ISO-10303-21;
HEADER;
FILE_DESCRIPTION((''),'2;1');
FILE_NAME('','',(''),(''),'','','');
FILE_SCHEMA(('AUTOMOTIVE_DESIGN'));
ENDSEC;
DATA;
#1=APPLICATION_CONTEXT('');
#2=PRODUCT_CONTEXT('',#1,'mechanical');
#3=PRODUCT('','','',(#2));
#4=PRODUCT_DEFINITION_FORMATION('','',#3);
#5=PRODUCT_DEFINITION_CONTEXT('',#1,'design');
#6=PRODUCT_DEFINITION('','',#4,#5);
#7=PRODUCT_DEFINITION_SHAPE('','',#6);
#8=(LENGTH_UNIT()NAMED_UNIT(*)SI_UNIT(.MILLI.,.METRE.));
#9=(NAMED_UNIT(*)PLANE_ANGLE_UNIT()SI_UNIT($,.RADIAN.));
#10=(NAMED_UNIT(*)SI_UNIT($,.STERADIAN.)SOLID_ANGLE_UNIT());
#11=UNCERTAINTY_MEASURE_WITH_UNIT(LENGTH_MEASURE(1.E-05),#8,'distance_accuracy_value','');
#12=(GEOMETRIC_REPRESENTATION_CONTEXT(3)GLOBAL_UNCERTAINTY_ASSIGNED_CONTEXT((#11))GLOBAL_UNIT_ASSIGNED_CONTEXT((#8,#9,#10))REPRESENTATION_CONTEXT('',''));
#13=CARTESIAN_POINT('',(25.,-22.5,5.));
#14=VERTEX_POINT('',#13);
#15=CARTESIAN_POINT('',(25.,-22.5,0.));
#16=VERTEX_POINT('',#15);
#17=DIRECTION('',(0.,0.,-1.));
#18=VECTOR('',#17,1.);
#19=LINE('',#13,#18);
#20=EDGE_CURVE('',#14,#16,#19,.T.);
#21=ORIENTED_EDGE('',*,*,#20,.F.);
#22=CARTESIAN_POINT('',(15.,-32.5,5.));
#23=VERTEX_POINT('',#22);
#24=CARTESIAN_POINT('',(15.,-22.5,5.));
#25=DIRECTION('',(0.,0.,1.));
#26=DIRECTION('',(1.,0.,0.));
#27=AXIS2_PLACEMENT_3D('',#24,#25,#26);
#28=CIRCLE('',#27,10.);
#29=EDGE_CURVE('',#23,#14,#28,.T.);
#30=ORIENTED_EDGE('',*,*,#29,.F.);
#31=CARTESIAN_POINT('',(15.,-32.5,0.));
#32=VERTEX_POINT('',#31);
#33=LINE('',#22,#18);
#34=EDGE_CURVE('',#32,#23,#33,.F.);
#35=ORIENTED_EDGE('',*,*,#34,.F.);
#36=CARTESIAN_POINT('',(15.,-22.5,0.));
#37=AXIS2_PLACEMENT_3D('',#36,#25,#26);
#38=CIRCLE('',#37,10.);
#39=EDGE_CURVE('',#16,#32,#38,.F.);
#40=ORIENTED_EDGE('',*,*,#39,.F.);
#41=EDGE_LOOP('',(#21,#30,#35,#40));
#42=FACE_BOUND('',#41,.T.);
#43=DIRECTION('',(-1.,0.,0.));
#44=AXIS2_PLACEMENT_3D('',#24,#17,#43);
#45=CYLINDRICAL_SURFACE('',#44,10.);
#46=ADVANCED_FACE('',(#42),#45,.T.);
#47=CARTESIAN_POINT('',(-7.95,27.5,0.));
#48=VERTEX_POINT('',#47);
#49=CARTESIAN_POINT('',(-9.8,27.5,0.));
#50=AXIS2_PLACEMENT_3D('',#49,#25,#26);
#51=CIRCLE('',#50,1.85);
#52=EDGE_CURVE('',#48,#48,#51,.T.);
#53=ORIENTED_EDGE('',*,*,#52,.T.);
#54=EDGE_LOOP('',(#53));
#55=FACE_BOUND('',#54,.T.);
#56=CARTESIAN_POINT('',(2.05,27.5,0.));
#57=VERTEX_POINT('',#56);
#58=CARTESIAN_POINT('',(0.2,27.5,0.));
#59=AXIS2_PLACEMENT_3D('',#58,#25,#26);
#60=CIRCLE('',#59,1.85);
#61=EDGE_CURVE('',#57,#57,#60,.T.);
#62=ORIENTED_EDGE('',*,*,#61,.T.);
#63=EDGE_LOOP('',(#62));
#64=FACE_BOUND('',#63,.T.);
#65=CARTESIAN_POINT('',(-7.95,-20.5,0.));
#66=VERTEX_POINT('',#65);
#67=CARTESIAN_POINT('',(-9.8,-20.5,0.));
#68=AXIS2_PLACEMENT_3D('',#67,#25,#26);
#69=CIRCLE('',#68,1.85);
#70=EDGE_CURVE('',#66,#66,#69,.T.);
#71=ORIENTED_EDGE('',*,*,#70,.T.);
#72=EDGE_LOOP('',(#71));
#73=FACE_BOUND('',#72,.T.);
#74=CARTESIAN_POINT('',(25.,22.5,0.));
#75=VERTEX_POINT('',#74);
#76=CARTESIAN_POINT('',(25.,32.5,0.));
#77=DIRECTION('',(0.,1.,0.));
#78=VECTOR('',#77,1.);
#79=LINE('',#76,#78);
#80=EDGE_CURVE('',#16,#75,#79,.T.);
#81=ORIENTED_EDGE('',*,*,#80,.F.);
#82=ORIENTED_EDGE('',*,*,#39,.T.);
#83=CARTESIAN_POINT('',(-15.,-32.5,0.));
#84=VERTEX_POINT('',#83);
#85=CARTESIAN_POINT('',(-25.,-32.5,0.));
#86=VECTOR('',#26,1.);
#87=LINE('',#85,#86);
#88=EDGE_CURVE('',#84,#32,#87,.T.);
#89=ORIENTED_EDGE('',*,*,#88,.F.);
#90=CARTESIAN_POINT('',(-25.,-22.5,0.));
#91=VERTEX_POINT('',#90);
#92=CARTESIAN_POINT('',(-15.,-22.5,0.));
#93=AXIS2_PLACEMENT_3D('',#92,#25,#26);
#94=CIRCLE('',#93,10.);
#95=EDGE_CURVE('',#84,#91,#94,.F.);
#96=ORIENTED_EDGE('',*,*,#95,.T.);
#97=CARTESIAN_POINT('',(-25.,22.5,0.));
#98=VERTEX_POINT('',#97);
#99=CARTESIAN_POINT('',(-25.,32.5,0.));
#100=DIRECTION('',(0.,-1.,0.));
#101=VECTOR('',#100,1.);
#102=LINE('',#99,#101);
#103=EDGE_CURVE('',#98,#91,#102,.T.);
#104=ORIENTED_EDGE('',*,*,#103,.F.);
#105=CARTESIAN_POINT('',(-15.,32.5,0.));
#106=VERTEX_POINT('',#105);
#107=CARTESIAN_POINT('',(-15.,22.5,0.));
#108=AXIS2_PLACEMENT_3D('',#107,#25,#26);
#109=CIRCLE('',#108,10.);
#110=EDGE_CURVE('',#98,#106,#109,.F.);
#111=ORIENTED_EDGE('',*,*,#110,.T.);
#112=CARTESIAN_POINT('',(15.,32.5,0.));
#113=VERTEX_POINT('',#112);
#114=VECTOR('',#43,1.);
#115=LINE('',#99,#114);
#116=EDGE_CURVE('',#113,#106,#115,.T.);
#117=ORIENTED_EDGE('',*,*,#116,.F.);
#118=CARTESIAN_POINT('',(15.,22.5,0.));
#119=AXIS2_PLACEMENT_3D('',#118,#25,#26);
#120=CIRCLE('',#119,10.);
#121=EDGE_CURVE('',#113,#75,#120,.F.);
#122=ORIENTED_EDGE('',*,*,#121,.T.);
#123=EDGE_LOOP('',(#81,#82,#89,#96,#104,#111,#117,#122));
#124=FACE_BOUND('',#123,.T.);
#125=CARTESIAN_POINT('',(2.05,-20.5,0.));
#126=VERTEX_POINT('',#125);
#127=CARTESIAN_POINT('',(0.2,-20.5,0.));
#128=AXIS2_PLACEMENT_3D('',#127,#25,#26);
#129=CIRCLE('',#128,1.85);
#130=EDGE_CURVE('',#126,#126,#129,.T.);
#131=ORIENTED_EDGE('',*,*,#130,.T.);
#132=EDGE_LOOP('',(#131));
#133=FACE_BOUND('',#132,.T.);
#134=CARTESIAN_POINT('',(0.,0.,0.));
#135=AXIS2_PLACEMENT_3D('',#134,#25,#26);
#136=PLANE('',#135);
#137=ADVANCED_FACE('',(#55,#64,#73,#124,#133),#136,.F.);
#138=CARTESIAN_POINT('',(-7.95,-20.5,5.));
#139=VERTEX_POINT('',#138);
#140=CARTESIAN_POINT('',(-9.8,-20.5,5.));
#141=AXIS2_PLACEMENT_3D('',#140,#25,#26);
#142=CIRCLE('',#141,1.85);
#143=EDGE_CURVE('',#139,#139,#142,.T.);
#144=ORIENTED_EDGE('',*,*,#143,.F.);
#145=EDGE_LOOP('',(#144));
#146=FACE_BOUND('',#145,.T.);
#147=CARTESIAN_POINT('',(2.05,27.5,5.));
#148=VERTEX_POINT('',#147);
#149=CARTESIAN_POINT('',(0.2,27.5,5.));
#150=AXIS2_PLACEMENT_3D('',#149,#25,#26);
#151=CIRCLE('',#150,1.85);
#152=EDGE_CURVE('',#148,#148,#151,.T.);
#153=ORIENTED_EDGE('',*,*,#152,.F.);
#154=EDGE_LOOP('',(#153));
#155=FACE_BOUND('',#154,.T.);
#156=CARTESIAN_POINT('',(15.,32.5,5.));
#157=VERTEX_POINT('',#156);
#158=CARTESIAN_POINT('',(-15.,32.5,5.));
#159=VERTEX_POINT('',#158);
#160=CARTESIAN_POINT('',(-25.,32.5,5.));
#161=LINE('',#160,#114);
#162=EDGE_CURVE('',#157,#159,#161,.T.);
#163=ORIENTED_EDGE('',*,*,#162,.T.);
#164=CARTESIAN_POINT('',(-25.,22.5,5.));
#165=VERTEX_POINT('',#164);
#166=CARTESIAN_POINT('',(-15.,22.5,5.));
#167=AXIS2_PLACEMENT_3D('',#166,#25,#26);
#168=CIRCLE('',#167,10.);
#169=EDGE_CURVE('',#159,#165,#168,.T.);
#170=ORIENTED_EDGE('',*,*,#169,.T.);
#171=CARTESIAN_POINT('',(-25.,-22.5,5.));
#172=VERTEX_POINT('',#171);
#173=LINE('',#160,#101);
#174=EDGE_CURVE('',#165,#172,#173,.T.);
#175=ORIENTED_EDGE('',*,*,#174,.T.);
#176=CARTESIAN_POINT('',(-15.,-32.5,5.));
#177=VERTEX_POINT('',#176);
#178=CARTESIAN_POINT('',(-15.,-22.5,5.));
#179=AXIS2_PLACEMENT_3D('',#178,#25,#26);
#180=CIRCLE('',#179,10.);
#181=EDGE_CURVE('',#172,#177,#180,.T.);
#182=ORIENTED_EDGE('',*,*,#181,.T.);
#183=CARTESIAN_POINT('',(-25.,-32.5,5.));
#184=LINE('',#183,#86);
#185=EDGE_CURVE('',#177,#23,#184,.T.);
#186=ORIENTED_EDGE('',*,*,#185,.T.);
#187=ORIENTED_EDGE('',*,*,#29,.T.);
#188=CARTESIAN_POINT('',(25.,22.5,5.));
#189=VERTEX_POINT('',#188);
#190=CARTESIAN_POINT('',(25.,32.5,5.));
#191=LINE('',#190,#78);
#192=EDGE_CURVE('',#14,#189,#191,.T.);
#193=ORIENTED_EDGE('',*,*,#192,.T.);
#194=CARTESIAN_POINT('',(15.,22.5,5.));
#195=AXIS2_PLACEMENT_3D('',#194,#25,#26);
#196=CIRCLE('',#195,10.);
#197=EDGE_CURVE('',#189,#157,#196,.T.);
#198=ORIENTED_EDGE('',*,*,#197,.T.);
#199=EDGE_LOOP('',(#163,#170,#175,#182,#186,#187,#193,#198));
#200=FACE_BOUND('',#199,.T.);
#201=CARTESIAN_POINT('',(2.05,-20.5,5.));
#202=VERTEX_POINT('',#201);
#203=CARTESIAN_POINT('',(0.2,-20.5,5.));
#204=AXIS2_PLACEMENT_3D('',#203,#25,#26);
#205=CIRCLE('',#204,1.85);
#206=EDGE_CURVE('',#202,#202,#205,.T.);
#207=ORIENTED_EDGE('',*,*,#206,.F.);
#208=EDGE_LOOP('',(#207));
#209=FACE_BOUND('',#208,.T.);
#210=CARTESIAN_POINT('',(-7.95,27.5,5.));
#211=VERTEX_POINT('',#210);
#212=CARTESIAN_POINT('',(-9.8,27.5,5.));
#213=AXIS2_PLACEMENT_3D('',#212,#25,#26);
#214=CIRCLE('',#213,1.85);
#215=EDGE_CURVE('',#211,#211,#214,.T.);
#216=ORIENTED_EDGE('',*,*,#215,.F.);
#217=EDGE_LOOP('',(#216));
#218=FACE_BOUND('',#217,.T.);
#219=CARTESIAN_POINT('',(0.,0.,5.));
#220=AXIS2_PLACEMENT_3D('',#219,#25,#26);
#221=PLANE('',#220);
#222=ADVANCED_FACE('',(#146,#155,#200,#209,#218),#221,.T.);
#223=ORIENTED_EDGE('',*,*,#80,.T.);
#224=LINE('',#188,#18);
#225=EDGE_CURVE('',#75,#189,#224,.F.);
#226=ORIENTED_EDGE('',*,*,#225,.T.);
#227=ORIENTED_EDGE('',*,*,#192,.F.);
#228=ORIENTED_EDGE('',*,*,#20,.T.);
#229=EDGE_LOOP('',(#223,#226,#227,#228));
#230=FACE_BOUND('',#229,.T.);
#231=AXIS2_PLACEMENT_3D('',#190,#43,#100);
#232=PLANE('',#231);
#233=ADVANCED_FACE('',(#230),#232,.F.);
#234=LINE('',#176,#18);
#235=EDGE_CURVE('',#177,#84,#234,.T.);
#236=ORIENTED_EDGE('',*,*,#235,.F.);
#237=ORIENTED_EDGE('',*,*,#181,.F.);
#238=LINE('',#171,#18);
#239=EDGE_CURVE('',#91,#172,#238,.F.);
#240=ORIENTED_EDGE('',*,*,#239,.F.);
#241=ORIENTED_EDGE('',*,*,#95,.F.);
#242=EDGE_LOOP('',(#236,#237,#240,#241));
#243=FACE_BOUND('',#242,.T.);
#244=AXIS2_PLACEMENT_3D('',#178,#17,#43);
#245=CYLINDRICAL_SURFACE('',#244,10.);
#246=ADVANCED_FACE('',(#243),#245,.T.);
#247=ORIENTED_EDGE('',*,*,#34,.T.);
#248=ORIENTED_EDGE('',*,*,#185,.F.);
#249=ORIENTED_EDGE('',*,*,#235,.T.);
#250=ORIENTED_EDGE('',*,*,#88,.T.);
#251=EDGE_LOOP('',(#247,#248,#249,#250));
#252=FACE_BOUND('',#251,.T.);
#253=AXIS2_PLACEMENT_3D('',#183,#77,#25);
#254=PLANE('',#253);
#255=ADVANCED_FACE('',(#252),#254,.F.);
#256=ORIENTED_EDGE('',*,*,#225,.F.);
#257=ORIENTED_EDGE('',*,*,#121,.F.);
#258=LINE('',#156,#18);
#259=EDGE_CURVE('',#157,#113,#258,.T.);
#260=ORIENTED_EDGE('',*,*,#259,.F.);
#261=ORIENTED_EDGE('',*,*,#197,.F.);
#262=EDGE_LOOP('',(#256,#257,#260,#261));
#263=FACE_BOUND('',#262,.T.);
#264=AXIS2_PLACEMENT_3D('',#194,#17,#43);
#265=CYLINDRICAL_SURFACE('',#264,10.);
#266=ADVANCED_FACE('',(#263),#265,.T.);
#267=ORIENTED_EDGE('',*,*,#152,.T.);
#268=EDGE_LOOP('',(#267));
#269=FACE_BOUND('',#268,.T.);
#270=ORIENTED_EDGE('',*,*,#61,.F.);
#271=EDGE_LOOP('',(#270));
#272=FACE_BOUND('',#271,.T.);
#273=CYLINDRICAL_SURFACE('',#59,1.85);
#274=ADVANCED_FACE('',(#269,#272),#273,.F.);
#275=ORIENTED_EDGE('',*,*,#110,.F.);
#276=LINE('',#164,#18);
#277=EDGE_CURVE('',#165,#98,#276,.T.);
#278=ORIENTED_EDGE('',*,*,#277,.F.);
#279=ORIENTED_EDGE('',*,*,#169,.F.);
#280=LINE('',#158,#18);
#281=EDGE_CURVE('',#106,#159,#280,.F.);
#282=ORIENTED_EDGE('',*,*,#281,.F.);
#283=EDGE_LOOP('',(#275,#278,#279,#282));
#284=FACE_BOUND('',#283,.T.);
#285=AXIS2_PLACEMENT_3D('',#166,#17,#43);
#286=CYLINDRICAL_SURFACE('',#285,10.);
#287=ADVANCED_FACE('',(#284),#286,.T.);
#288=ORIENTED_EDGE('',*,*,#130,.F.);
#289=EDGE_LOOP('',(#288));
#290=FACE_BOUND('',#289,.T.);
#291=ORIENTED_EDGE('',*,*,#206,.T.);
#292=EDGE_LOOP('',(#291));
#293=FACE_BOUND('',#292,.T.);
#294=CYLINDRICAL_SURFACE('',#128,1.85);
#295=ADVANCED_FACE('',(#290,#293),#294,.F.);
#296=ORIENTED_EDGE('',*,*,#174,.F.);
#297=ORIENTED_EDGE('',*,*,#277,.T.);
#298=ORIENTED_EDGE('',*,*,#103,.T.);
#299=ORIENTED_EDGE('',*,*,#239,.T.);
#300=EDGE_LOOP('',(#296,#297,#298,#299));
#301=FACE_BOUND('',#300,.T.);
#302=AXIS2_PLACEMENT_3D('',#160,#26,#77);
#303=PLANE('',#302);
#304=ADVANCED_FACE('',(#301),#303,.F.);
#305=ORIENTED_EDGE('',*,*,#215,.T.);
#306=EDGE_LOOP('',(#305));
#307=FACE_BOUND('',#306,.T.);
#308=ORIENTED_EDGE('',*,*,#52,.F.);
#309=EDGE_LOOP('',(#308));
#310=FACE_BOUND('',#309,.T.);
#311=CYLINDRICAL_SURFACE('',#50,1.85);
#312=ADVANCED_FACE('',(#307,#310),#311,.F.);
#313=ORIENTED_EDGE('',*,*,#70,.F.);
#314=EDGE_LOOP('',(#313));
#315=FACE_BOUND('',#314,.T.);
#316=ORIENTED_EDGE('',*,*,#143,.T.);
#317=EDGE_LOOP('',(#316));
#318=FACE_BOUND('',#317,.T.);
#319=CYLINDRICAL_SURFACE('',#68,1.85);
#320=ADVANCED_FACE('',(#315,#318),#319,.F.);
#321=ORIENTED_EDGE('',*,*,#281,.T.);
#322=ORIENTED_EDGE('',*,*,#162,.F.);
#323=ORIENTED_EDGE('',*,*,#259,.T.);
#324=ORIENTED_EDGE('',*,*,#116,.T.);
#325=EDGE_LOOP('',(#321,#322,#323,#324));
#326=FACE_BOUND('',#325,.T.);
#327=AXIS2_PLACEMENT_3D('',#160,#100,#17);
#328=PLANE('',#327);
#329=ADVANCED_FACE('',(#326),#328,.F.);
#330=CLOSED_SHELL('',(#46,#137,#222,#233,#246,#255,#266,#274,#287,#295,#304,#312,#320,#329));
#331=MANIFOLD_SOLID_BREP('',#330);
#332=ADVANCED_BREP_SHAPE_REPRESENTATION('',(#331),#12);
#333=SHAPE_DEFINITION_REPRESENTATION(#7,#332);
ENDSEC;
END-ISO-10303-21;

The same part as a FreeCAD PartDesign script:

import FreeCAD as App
import Part
import Sketcher


def edges_at(feature, points):
    """Names of the edges that pass closest to the given points."""
    edges = feature.Shape.Edges
    near = lambda p: min(range(len(edges)), key=lambda i: edges[i].distToShape(Part.Vertex(*p))[0])
    return sorted({f"Edge{near(p) + 1}" for p in points})


def add_polygon(sketch, points):
    """Adds a closed chain of lines whose ends are joined by coincident constraints."""
    first, n = sketch.GeometryCount, len(points)
    for a, b in zip(points, points[1:] + points[:1]):
        sketch.addGeometry(Part.LineSegment(App.Vector(*a, 0), App.Vector(*b, 0)), False)
    for i in range(n):
        sketch.addConstraint(Sketcher.Constraint("Coincident", first + i, 2, first + (i + 1) % n, 1))

doc = App.newDocument("Part")
body = doc.addObject("PartDesign::Body", "Body")

# Sketch on XY plane
sketch1 = body.newObject("Sketcher::SketchObject", "Sketch")
sketch1.AttachmentSupport = (doc.getObject("XY_Plane"), [""])
sketch1.MapMode = "FlatFace"
add_polygon(sketch1, [(-25, 32), (-25, -32), (25, -32), (25, 32)])  # lines 0-3
sketch1.addConstraint([
    Sketcher.Constraint("Vertical", 0),
    Sketcher.Constraint("Horizontal", 1),
    Sketcher.Constraint("Vertical", 2),
    Sketcher.Constraint("Horizontal", 3),
    Sketcher.Constraint("Symmetric", 0, 2, 2, 2, -1, 1),
    Sketcher.Constraint("DistanceX", 1, 1, 1, 2, 50.0),
    Sketcher.Constraint("DistanceY", 0, 2, 0, 1, 65.0),
])
pad1 = body.newObject("PartDesign::Pad", "Pad")
pad1.Profile = sketch1
pad1.Length = 5

# Sketch on XY plane
sketch2 = body.newObject("Sketcher::SketchObject", "Sketch001")
sketch2.AttachmentSupport = (doc.getObject("XY_Plane"), [""])
sketch2.MapMode = "FlatFace"
sketch2.AttachmentOffset = App.Placement(App.Vector(0, 0, 5), App.Rotation())
sketch2.addGeometry([
    Part.Circle(App.Vector(-9.8, -20.5, 0), App.Vector(0, 0, 1), 1.9),
    Part.Circle(App.Vector(0.2, -20.5, 0), App.Vector(0, 0, 1), 1.9),
    Part.Circle(App.Vector(-9.8, 27.5, 0), App.Vector(0, 0, 1), 1.9),
    Part.Circle(App.Vector(0.2, 27.5, 0), App.Vector(0, 0, 1), 1.9),
], False)
sketch2.addConstraint([
    Sketcher.Constraint("Equal", 0, 1),
    Sketcher.Constraint("Equal", 1, 2),
    Sketcher.Constraint("Equal", 2, 3),
    Sketcher.Constraint("Horizontal", 0, 3, 1, 3),
    Sketcher.Constraint("Horizontal", 2, 3, 3, 3),
    Sketcher.Constraint("Vertical", 0, 3, 2, 3),
    Sketcher.Constraint("Vertical", 1, 3, 3, 3),
    Sketcher.Constraint("Diameter", 0, 3.7),
    Sketcher.Constraint("DistanceX", 0, 3, 1, 3, 10.0),
    Sketcher.Constraint("DistanceY", 0, 3, 2, 3, 48.0),
    Sketcher.Constraint("DistanceX", 0, 3, -1, 1, 9.8),
    Sketcher.Constraint("DistanceY", 0, 3, -1, 1, 20.5),
])
pocket1 = body.newObject("PartDesign::Pocket", "Pocket")
pocket1.Profile = sketch2
pocket1.Type = "ThroughAll"
doc.recompute()

fillet = body.newObject("PartDesign::Fillet", "Fillet")
fillet.Base = (pocket1, edges_at(pocket1, [
    (25, -32.5, 2.5),
    (-25, -32.5, 2.5),
    (-25, 32.5, 2.5),
    (25, 32.5, 2.5),
]))
fillet.Radius = 10

doc.recompute()
